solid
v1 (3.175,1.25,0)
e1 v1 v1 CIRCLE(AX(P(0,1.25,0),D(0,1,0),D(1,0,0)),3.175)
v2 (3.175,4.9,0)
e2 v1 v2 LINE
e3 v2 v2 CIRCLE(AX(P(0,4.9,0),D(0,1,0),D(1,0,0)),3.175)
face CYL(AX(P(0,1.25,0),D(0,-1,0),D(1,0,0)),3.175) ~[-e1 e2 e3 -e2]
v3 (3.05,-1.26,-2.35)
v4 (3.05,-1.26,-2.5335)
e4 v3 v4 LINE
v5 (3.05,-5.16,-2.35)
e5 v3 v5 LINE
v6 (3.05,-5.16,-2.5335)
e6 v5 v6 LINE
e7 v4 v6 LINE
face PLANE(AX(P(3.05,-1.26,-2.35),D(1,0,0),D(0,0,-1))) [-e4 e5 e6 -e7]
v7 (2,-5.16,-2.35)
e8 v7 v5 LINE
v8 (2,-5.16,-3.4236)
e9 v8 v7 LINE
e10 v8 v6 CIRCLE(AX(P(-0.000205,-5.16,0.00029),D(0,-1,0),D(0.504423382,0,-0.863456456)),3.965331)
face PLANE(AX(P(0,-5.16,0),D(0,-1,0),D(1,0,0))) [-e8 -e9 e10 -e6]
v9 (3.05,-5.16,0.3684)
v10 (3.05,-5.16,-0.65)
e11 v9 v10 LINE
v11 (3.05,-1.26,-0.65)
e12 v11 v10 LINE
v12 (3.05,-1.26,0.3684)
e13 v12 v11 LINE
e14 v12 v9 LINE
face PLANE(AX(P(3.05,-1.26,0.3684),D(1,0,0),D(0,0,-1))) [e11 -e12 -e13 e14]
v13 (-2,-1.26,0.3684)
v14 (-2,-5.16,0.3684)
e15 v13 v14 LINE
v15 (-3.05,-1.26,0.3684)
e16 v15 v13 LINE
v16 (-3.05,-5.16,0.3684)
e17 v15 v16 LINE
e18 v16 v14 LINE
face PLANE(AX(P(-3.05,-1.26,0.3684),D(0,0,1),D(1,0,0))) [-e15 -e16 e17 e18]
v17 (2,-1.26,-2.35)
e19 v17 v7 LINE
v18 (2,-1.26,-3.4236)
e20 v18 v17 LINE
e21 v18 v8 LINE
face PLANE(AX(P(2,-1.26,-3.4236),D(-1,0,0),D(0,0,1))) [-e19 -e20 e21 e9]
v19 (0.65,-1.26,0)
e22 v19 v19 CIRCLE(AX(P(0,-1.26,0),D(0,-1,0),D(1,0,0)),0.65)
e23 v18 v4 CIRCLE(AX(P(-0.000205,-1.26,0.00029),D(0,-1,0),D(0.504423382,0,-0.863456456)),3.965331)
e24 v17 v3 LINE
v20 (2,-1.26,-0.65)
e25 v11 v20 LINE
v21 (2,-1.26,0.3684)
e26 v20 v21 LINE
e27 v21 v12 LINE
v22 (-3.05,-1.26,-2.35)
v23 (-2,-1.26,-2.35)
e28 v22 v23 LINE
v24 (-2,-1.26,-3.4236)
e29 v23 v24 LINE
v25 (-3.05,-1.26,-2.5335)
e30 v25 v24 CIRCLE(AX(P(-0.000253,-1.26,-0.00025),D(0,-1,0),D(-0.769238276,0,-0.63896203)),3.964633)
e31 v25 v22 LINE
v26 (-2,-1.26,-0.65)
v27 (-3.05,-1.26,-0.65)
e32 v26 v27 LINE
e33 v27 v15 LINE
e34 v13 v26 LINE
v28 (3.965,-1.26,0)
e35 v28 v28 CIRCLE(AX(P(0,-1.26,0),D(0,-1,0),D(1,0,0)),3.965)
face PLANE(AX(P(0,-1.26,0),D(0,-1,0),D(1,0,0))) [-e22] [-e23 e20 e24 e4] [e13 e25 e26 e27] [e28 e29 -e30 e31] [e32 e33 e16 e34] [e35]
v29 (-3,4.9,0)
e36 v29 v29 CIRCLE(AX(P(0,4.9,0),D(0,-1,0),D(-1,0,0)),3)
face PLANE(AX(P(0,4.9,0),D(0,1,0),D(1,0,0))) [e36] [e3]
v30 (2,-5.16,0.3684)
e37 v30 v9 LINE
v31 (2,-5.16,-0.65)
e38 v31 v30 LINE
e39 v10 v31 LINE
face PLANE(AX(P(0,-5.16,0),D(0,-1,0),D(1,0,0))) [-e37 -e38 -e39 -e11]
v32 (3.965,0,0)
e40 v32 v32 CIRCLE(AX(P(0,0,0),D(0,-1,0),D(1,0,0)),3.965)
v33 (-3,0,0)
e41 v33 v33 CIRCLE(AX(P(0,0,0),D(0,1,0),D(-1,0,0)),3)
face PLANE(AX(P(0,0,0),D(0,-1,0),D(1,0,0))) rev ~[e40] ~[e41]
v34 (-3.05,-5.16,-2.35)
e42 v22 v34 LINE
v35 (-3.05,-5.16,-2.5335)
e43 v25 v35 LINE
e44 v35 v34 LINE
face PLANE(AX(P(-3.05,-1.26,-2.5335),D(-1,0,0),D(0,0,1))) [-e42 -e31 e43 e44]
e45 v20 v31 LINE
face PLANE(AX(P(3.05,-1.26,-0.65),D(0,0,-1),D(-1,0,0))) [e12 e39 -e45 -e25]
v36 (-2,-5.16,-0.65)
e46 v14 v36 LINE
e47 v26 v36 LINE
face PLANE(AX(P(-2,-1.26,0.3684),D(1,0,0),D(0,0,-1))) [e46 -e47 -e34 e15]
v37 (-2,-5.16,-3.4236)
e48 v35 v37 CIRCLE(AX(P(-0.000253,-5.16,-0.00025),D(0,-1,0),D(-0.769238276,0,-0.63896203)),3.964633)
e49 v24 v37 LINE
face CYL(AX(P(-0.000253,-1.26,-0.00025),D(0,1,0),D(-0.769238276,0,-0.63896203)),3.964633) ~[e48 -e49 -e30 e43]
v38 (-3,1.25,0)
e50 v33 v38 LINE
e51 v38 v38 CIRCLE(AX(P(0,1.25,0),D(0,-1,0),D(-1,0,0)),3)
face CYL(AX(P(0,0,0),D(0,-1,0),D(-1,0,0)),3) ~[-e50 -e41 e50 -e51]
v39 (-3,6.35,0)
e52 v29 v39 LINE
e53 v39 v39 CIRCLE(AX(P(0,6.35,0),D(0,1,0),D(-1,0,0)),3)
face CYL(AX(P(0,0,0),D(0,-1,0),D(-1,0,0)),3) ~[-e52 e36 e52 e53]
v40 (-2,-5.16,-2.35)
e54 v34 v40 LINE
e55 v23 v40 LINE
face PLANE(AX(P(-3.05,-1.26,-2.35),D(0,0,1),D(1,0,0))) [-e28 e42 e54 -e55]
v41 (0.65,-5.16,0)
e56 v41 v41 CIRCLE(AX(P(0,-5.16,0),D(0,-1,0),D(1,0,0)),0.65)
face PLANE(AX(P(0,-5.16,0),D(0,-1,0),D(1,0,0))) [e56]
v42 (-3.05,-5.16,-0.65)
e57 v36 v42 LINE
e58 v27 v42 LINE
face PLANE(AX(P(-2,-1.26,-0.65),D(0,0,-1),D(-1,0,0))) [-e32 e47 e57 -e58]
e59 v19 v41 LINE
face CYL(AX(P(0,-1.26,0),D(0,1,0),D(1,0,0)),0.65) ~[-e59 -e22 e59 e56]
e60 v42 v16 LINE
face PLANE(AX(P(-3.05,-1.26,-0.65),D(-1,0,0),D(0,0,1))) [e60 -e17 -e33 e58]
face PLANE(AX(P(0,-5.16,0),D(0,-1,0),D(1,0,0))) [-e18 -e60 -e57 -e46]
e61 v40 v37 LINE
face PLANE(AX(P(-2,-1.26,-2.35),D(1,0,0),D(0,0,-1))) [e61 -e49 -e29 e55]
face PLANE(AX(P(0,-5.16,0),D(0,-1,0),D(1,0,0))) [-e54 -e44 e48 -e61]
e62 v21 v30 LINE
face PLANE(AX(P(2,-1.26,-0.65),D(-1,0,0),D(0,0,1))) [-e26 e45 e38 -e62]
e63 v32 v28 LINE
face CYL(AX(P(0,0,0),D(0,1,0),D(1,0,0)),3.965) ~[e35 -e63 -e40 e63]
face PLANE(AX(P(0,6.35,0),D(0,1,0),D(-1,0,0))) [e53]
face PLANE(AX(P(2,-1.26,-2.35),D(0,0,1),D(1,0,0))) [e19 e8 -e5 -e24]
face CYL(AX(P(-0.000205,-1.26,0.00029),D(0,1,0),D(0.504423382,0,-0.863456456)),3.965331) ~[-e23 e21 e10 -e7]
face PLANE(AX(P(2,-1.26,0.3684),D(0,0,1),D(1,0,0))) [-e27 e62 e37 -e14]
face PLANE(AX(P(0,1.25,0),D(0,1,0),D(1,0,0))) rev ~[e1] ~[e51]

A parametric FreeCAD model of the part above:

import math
import FreeCAD as App
import Part
import Sketcher
from FreeCAD import Vector
Q = App.Units.Quantity


def add_polygon(sketch, points):
    """Adds a closed chain of lines whose ends are joined by coincident constraints."""
    first, n = sketch.GeometryCount, len(points)
    for a, b in zip(points, points[1:] + points[:1]):
        sketch.addGeometry(Part.LineSegment(App.Vector(*a, 0), App.Vector(*b, 0)), False)
    for i in range(n):
        sketch.addConstraint(Sketcher.Constraint("Coincident", first + i, 2, first + (i + 1) % n, 1))

doc = App.newDocument("Part")
body = doc.addObject("PartDesign::Body", "Body")

sketch1 = body.newObject("Sketcher::SketchObject", "Sketch")
sketch1.AttachmentSupport = (doc.getObject("XZ_Plane"), [""])
sketch1.MapMode = "FlatFace"
sketch1.addGeometry(Part.Circle(Vector(0, 0, 0), Vector(0, 0, 1), 3), False)
sketch1.addConstraint(Sketcher.Constraint("Coincident", 0, 3, -1, 1))
sketch1.addConstraint(Sketcher.Constraint("Diameter", 0, Q("6 mm")))
pad1 = body.newObject("PartDesign::Pad", "Pad")
pad1.Profile = sketch1
pad1.Length = 6.35
pad1.Reversed = True

sketch2 = body.newObject("Sketcher::SketchObject", "Sketch001")
sketch2.AttachmentSupport = (doc.getObject("XZ_Plane"), [""])
sketch2.MapMode = "FlatFace"
sketch2.addGeometry(Part.Circle(Vector(0, 0, 0), Vector(0, 0, 1), 4), False)
sketch2.addConstraint(Sketcher.Constraint("Coincident", 0, 3, -1, 1))
sketch2.addConstraint(Sketcher.Constraint("Diameter", 0, Q("7.93 mm")))
pad2 = body.newObject("PartDesign::Pad", "Pad001")
pad2.Profile = sketch2
pad2.Length = 1.26

sketch3 = body.newObject("Sketcher::SketchObject", "Sketch002")
sketch3.AttachmentSupport = (doc.getObject("XZ_Plane"), [""])
sketch3.MapMode = "FlatFace"
sketch3.AttachmentOffset = App.Placement(Vector(0, 0, 1.26), App.Rotation())
sketch3.addGeometry(Part.Circle(Vector(0, 0, 0), Vector(0, 0, 1), 0.7), False)
sketch3.addConstraint(Sketcher.Constraint("Coincident", 0, 3, -1, 1))
sketch3.addConstraint(Sketcher.Constraint("Diameter", 0, Q("1.3 mm")))
pad3 = body.newObject("PartDesign::Pad", "Pad002")
pad3.Profile = sketch3
pad3.Length = 3.9

sketch4 = body.newObject("Sketcher::SketchObject", "Sketch003")
sketch4.AttachmentSupport = (doc.getObject("XZ_Plane"), [""])
sketch4.MapMode = "FlatFace"
sketch4.AttachmentOffset = App.Placement(Vector(0, 0, 1.26), App.Rotation())
add_polygon(sketch4, [(-2, 0.4), (-3, 0.4), (-3, -0.7), (-2, -0.7)])
add_polygon(sketch4, [(3, 0.4), (2, 0.4), (2, -0.7), (3, -0.7)])
sketch4.addConstraint(Sketcher.Constraint("Horizontal", 0))
sketch4.addConstraint(Sketcher.Constraint("Vertical", 1))
sketch4.addConstraint(Sketcher.Constraint("Horizontal", 2))
sketch4.addConstraint(Sketcher.Constraint("Vertical", 3))
sketch4.addConstraint(Sketcher.Constraint("Horizontal", 4))
sketch4.addConstraint(Sketcher.Constraint("Vertical", 5))
sketch4.addConstraint(Sketcher.Constraint("Horizontal", 6))
sketch4.addConstraint(Sketcher.Constraint("Vertical", 7))
sketch4.addConstraint(Sketcher.Constraint("Symmetric", 3, 2, 4, 2, -2))
sketch4.addConstraint(Sketcher.Constraint("Symmetric", 1, 2, 6, 2, -2))
sketch4.addConstraint(Sketcher.Constraint("DistanceX", 3, 2, 4, 2, Q("4 mm")))
sketch4.addConstraint(Sketcher.Constraint("DistanceX", 1, 2, 6, 2, Q("6.1 mm")))
sketch4.addConstraint(Sketcher.Constraint("DistanceY", 1, 2, -1, 1, Q("0.65 mm")))
sketch4.addConstraint(Sketcher.Constraint("DistanceY", 1, 2, 1, 1, Q("1.0184 mm")))
pad4 = body.newObject("PartDesign::Pad", "Pad003")
pad4.Profile = sketch4
pad4.Length = 3.9

sketch5 = body.newObject("Sketcher::SketchObject", "Sketch004")
sketch5.AttachmentSupport = (doc.getObject("XZ_Plane"), [""])
sketch5.MapMode = "FlatFace"
sketch5.AttachmentOffset = App.Placement(Vector(0, 0, 1.26), App.Rotation())
sketch5.addGeometry(Part.LineSegment(Vector(-2, -2.35, 0), Vector(-3.05, -2.35, 0)), False)
sketch5.addGeometry(Part.LineSegment(Vector(-3.05, -2.35, 0), Vector(-3.05, -2.53, 0)), False)
sketch5.addGeometry(Part.ArcOfCircle(Part.Circle(Vector(0, 0, 0), Vector(0, 0, 1), 3.96), math.radians(-140.29), math.radians(-120.29)), False)
sketch5.addGeometry(Part.LineSegment(Vector(-2, -3.42, 0), Vector(-2, -2.35, 0)), False)
sketch5.addGeometry(Part.LineSegment(Vector(3.05, -2.35, 0), Vector(2, -2.35, 0)), False)
sketch5.addGeometry(Part.LineSegment(Vector(2, -2.35, 0), Vector(2, -3.42, 0)), False)
sketch5.addGeometry(Part.ArcOfCircle(Part.Circle(Vector(0, 0, 0), Vector(0, 0, 1), 3.96), math.radians(-59.71), math.radians(-39.71)), False)
sketch5.addGeometry(Part.LineSegment(Vector(3.05, -2.53, 0), Vector(3.05, -2.35, 0)), False)
sketch5.addConstraint(Sketcher.Constraint("Coincident", 0, 2, 1, 1))
sketch5.addConstraint(Sketcher.Constraint("Coincident", 1, 2, 2, 1))
sketch5.addConstraint(Sketcher.Constraint("Coincident", 2, 2, 3, 1))
sketch5.addConstraint(Sketcher.Constraint("Coincident", 3, 2, 0, 1))
sketch5.addConstraint(Sketcher.Constraint("Coincident", 4, 2, 5, 1))
sketch5.addConstraint(Sketcher.Constraint("Coincident", 5, 2, 6, 1))
sketch5.addConstraint(Sketcher.Constraint("Coincident", 6, 2, 7, 1))
sketch5.addConstraint(Sketcher.Constraint("Coincident", 7, 2, 4, 1))
sketch5.addConstraint(Sketcher.Constraint("Horizontal", 0))
sketch5.addConstraint(Sketcher.Constraint("Vertical", 1))
sketch5.addConstraint(Sketcher.Constraint("Vertical", 3))
sketch5.addConstraint(Sketcher.Constraint("Horizontal", 4))
sketch5.addConstraint(Sketcher.Constraint("Vertical", 5))
sketch5.addConstraint(Sketcher.Constraint("Vertical", 7))
sketch5.addConstraint(Sketcher.Constraint("Coincident", 2, 3, -1, 1))
sketch5.addConstraint(Sketcher.Constraint("Coincident", 6, 3, -1, 1))
sketch5.addConstraint(Sketcher.Constraint("Equal", 2, 6))
sketch5.addConstraint(Sketcher.Constraint("Symmetric", 3, 2, 4, 2, -2))
sketch5.addConstraint(Sketcher.Constraint("Horizontal", 1, 2, 6, 2))
sketch5.addConstraint(Sketcher.Constraint("DistanceX", 2, 2, -1, 1, Q("2 mm")))
sketch5.addConstraint(Sketcher.Constraint("Radius", 2, Q("3.965 mm")))
sketch5.addConstraint(Sketcher.Constraint("DistanceX", 0, 2, 0, 1, Q("1.05 mm")))
sketch5.addConstraint(Sketcher.Constraint("DistanceY", 0, 2, -1, 1, Q("2.35 mm")))
pad5 = body.newObject("PartDesign::Pad", "Pad004")
pad5.Profile = sketch5
pad5.Length = 3.9

sketch6 = body.newObject("Sketcher::SketchObject", "Sketch005")
sketch6.AttachmentSupport = (doc.getObject("XZ_Plane"), [""])
sketch6.MapMode = "FlatFace"
sketch6.AttachmentOffset = App.Placement(Vector(0, 0, -1.25), App.Rotation())
sketch6.addGeometry(Part.Circle(Vector(0, 0, 0), Vector(0, 0, 1), 3.2), False)
sketch6.addConstraint(Sketcher.Constraint("Coincident", 0, 3, -1, 1))
sketch6.addConstraint(Sketcher.Constraint("Diameter", 0, Q("6.35 mm")))
pad6 = body.newObject("PartDesign::Pad", "Pad005")
pad6.Profile = sketch6
pad6.Length = 3.65
pad6.Reversed = True

doc.recompute()
